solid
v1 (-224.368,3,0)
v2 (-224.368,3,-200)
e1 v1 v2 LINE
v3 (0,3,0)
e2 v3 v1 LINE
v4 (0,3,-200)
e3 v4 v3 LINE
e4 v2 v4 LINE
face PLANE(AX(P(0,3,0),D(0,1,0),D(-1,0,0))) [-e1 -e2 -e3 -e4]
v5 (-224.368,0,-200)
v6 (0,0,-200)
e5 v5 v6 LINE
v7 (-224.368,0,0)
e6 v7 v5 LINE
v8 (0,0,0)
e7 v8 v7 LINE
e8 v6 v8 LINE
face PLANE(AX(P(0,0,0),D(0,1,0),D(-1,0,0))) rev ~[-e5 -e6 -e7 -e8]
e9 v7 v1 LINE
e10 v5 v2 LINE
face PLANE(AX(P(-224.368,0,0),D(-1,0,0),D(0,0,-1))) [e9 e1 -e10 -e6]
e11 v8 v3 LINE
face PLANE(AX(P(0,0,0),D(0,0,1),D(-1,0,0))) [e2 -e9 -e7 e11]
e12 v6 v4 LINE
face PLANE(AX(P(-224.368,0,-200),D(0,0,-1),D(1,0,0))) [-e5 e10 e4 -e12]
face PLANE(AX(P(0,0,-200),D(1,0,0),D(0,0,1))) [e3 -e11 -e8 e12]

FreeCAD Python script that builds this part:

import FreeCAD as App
import Part
import Sketcher

V = App.Vector

doc = App.newDocument("Part")
body = doc.addObject("PartDesign::Body", "Body")

sketch1 = body.newObject("Sketcher::SketchObject", "Sketch")
sketch1.AttachmentSupport = (doc.getObject("XZ_Plane"), [""])
sketch1.MapMode = "FlatFace"
sketch1.addGeometry([
    Part.LineSegment(V(-224, 0, 0), V(0, 0, 0)),
    Part.LineSegment(V(0, 0, 0), V(0, -200, 0)),
    Part.LineSegment(V(0, -200, 0), V(-224, -200, 0)),
    Part.LineSegment(V(-224, -200, 0), V(-224, 0, 0)),
], False)
sketch1.addConstraint([
    Sketcher.Constraint("Coincident", 0, 2, 1, 1),
    Sketcher.Constraint("Coincident", 1, 2, 2, 1),
    Sketcher.Constraint("Coincident", 2, 2, 3, 1),
    Sketcher.Constraint("Coincident", 3, 2, 0, 1),
    Sketcher.Constraint("Horizontal", 0),
    Sketcher.Constraint("Vertical", 1),
    Sketcher.Constraint("Horizontal", 2),
    Sketcher.Constraint("Vertical", 3),
    Sketcher.Constraint("Coincident", 0, 2, -1, 1),
    Sketcher.Constraint("DistanceY", 1, 2, 1, 1, 200.0),
    Sketcher.Constraint("DistanceX", 0, 1, 0, 2, 224.368),
])
pad1 = body.newObject("PartDesign::Pad", "Pad")
pad1.Profile = sketch1
pad1.Length = 3
pad1.Reversed = True

doc.recompute()
